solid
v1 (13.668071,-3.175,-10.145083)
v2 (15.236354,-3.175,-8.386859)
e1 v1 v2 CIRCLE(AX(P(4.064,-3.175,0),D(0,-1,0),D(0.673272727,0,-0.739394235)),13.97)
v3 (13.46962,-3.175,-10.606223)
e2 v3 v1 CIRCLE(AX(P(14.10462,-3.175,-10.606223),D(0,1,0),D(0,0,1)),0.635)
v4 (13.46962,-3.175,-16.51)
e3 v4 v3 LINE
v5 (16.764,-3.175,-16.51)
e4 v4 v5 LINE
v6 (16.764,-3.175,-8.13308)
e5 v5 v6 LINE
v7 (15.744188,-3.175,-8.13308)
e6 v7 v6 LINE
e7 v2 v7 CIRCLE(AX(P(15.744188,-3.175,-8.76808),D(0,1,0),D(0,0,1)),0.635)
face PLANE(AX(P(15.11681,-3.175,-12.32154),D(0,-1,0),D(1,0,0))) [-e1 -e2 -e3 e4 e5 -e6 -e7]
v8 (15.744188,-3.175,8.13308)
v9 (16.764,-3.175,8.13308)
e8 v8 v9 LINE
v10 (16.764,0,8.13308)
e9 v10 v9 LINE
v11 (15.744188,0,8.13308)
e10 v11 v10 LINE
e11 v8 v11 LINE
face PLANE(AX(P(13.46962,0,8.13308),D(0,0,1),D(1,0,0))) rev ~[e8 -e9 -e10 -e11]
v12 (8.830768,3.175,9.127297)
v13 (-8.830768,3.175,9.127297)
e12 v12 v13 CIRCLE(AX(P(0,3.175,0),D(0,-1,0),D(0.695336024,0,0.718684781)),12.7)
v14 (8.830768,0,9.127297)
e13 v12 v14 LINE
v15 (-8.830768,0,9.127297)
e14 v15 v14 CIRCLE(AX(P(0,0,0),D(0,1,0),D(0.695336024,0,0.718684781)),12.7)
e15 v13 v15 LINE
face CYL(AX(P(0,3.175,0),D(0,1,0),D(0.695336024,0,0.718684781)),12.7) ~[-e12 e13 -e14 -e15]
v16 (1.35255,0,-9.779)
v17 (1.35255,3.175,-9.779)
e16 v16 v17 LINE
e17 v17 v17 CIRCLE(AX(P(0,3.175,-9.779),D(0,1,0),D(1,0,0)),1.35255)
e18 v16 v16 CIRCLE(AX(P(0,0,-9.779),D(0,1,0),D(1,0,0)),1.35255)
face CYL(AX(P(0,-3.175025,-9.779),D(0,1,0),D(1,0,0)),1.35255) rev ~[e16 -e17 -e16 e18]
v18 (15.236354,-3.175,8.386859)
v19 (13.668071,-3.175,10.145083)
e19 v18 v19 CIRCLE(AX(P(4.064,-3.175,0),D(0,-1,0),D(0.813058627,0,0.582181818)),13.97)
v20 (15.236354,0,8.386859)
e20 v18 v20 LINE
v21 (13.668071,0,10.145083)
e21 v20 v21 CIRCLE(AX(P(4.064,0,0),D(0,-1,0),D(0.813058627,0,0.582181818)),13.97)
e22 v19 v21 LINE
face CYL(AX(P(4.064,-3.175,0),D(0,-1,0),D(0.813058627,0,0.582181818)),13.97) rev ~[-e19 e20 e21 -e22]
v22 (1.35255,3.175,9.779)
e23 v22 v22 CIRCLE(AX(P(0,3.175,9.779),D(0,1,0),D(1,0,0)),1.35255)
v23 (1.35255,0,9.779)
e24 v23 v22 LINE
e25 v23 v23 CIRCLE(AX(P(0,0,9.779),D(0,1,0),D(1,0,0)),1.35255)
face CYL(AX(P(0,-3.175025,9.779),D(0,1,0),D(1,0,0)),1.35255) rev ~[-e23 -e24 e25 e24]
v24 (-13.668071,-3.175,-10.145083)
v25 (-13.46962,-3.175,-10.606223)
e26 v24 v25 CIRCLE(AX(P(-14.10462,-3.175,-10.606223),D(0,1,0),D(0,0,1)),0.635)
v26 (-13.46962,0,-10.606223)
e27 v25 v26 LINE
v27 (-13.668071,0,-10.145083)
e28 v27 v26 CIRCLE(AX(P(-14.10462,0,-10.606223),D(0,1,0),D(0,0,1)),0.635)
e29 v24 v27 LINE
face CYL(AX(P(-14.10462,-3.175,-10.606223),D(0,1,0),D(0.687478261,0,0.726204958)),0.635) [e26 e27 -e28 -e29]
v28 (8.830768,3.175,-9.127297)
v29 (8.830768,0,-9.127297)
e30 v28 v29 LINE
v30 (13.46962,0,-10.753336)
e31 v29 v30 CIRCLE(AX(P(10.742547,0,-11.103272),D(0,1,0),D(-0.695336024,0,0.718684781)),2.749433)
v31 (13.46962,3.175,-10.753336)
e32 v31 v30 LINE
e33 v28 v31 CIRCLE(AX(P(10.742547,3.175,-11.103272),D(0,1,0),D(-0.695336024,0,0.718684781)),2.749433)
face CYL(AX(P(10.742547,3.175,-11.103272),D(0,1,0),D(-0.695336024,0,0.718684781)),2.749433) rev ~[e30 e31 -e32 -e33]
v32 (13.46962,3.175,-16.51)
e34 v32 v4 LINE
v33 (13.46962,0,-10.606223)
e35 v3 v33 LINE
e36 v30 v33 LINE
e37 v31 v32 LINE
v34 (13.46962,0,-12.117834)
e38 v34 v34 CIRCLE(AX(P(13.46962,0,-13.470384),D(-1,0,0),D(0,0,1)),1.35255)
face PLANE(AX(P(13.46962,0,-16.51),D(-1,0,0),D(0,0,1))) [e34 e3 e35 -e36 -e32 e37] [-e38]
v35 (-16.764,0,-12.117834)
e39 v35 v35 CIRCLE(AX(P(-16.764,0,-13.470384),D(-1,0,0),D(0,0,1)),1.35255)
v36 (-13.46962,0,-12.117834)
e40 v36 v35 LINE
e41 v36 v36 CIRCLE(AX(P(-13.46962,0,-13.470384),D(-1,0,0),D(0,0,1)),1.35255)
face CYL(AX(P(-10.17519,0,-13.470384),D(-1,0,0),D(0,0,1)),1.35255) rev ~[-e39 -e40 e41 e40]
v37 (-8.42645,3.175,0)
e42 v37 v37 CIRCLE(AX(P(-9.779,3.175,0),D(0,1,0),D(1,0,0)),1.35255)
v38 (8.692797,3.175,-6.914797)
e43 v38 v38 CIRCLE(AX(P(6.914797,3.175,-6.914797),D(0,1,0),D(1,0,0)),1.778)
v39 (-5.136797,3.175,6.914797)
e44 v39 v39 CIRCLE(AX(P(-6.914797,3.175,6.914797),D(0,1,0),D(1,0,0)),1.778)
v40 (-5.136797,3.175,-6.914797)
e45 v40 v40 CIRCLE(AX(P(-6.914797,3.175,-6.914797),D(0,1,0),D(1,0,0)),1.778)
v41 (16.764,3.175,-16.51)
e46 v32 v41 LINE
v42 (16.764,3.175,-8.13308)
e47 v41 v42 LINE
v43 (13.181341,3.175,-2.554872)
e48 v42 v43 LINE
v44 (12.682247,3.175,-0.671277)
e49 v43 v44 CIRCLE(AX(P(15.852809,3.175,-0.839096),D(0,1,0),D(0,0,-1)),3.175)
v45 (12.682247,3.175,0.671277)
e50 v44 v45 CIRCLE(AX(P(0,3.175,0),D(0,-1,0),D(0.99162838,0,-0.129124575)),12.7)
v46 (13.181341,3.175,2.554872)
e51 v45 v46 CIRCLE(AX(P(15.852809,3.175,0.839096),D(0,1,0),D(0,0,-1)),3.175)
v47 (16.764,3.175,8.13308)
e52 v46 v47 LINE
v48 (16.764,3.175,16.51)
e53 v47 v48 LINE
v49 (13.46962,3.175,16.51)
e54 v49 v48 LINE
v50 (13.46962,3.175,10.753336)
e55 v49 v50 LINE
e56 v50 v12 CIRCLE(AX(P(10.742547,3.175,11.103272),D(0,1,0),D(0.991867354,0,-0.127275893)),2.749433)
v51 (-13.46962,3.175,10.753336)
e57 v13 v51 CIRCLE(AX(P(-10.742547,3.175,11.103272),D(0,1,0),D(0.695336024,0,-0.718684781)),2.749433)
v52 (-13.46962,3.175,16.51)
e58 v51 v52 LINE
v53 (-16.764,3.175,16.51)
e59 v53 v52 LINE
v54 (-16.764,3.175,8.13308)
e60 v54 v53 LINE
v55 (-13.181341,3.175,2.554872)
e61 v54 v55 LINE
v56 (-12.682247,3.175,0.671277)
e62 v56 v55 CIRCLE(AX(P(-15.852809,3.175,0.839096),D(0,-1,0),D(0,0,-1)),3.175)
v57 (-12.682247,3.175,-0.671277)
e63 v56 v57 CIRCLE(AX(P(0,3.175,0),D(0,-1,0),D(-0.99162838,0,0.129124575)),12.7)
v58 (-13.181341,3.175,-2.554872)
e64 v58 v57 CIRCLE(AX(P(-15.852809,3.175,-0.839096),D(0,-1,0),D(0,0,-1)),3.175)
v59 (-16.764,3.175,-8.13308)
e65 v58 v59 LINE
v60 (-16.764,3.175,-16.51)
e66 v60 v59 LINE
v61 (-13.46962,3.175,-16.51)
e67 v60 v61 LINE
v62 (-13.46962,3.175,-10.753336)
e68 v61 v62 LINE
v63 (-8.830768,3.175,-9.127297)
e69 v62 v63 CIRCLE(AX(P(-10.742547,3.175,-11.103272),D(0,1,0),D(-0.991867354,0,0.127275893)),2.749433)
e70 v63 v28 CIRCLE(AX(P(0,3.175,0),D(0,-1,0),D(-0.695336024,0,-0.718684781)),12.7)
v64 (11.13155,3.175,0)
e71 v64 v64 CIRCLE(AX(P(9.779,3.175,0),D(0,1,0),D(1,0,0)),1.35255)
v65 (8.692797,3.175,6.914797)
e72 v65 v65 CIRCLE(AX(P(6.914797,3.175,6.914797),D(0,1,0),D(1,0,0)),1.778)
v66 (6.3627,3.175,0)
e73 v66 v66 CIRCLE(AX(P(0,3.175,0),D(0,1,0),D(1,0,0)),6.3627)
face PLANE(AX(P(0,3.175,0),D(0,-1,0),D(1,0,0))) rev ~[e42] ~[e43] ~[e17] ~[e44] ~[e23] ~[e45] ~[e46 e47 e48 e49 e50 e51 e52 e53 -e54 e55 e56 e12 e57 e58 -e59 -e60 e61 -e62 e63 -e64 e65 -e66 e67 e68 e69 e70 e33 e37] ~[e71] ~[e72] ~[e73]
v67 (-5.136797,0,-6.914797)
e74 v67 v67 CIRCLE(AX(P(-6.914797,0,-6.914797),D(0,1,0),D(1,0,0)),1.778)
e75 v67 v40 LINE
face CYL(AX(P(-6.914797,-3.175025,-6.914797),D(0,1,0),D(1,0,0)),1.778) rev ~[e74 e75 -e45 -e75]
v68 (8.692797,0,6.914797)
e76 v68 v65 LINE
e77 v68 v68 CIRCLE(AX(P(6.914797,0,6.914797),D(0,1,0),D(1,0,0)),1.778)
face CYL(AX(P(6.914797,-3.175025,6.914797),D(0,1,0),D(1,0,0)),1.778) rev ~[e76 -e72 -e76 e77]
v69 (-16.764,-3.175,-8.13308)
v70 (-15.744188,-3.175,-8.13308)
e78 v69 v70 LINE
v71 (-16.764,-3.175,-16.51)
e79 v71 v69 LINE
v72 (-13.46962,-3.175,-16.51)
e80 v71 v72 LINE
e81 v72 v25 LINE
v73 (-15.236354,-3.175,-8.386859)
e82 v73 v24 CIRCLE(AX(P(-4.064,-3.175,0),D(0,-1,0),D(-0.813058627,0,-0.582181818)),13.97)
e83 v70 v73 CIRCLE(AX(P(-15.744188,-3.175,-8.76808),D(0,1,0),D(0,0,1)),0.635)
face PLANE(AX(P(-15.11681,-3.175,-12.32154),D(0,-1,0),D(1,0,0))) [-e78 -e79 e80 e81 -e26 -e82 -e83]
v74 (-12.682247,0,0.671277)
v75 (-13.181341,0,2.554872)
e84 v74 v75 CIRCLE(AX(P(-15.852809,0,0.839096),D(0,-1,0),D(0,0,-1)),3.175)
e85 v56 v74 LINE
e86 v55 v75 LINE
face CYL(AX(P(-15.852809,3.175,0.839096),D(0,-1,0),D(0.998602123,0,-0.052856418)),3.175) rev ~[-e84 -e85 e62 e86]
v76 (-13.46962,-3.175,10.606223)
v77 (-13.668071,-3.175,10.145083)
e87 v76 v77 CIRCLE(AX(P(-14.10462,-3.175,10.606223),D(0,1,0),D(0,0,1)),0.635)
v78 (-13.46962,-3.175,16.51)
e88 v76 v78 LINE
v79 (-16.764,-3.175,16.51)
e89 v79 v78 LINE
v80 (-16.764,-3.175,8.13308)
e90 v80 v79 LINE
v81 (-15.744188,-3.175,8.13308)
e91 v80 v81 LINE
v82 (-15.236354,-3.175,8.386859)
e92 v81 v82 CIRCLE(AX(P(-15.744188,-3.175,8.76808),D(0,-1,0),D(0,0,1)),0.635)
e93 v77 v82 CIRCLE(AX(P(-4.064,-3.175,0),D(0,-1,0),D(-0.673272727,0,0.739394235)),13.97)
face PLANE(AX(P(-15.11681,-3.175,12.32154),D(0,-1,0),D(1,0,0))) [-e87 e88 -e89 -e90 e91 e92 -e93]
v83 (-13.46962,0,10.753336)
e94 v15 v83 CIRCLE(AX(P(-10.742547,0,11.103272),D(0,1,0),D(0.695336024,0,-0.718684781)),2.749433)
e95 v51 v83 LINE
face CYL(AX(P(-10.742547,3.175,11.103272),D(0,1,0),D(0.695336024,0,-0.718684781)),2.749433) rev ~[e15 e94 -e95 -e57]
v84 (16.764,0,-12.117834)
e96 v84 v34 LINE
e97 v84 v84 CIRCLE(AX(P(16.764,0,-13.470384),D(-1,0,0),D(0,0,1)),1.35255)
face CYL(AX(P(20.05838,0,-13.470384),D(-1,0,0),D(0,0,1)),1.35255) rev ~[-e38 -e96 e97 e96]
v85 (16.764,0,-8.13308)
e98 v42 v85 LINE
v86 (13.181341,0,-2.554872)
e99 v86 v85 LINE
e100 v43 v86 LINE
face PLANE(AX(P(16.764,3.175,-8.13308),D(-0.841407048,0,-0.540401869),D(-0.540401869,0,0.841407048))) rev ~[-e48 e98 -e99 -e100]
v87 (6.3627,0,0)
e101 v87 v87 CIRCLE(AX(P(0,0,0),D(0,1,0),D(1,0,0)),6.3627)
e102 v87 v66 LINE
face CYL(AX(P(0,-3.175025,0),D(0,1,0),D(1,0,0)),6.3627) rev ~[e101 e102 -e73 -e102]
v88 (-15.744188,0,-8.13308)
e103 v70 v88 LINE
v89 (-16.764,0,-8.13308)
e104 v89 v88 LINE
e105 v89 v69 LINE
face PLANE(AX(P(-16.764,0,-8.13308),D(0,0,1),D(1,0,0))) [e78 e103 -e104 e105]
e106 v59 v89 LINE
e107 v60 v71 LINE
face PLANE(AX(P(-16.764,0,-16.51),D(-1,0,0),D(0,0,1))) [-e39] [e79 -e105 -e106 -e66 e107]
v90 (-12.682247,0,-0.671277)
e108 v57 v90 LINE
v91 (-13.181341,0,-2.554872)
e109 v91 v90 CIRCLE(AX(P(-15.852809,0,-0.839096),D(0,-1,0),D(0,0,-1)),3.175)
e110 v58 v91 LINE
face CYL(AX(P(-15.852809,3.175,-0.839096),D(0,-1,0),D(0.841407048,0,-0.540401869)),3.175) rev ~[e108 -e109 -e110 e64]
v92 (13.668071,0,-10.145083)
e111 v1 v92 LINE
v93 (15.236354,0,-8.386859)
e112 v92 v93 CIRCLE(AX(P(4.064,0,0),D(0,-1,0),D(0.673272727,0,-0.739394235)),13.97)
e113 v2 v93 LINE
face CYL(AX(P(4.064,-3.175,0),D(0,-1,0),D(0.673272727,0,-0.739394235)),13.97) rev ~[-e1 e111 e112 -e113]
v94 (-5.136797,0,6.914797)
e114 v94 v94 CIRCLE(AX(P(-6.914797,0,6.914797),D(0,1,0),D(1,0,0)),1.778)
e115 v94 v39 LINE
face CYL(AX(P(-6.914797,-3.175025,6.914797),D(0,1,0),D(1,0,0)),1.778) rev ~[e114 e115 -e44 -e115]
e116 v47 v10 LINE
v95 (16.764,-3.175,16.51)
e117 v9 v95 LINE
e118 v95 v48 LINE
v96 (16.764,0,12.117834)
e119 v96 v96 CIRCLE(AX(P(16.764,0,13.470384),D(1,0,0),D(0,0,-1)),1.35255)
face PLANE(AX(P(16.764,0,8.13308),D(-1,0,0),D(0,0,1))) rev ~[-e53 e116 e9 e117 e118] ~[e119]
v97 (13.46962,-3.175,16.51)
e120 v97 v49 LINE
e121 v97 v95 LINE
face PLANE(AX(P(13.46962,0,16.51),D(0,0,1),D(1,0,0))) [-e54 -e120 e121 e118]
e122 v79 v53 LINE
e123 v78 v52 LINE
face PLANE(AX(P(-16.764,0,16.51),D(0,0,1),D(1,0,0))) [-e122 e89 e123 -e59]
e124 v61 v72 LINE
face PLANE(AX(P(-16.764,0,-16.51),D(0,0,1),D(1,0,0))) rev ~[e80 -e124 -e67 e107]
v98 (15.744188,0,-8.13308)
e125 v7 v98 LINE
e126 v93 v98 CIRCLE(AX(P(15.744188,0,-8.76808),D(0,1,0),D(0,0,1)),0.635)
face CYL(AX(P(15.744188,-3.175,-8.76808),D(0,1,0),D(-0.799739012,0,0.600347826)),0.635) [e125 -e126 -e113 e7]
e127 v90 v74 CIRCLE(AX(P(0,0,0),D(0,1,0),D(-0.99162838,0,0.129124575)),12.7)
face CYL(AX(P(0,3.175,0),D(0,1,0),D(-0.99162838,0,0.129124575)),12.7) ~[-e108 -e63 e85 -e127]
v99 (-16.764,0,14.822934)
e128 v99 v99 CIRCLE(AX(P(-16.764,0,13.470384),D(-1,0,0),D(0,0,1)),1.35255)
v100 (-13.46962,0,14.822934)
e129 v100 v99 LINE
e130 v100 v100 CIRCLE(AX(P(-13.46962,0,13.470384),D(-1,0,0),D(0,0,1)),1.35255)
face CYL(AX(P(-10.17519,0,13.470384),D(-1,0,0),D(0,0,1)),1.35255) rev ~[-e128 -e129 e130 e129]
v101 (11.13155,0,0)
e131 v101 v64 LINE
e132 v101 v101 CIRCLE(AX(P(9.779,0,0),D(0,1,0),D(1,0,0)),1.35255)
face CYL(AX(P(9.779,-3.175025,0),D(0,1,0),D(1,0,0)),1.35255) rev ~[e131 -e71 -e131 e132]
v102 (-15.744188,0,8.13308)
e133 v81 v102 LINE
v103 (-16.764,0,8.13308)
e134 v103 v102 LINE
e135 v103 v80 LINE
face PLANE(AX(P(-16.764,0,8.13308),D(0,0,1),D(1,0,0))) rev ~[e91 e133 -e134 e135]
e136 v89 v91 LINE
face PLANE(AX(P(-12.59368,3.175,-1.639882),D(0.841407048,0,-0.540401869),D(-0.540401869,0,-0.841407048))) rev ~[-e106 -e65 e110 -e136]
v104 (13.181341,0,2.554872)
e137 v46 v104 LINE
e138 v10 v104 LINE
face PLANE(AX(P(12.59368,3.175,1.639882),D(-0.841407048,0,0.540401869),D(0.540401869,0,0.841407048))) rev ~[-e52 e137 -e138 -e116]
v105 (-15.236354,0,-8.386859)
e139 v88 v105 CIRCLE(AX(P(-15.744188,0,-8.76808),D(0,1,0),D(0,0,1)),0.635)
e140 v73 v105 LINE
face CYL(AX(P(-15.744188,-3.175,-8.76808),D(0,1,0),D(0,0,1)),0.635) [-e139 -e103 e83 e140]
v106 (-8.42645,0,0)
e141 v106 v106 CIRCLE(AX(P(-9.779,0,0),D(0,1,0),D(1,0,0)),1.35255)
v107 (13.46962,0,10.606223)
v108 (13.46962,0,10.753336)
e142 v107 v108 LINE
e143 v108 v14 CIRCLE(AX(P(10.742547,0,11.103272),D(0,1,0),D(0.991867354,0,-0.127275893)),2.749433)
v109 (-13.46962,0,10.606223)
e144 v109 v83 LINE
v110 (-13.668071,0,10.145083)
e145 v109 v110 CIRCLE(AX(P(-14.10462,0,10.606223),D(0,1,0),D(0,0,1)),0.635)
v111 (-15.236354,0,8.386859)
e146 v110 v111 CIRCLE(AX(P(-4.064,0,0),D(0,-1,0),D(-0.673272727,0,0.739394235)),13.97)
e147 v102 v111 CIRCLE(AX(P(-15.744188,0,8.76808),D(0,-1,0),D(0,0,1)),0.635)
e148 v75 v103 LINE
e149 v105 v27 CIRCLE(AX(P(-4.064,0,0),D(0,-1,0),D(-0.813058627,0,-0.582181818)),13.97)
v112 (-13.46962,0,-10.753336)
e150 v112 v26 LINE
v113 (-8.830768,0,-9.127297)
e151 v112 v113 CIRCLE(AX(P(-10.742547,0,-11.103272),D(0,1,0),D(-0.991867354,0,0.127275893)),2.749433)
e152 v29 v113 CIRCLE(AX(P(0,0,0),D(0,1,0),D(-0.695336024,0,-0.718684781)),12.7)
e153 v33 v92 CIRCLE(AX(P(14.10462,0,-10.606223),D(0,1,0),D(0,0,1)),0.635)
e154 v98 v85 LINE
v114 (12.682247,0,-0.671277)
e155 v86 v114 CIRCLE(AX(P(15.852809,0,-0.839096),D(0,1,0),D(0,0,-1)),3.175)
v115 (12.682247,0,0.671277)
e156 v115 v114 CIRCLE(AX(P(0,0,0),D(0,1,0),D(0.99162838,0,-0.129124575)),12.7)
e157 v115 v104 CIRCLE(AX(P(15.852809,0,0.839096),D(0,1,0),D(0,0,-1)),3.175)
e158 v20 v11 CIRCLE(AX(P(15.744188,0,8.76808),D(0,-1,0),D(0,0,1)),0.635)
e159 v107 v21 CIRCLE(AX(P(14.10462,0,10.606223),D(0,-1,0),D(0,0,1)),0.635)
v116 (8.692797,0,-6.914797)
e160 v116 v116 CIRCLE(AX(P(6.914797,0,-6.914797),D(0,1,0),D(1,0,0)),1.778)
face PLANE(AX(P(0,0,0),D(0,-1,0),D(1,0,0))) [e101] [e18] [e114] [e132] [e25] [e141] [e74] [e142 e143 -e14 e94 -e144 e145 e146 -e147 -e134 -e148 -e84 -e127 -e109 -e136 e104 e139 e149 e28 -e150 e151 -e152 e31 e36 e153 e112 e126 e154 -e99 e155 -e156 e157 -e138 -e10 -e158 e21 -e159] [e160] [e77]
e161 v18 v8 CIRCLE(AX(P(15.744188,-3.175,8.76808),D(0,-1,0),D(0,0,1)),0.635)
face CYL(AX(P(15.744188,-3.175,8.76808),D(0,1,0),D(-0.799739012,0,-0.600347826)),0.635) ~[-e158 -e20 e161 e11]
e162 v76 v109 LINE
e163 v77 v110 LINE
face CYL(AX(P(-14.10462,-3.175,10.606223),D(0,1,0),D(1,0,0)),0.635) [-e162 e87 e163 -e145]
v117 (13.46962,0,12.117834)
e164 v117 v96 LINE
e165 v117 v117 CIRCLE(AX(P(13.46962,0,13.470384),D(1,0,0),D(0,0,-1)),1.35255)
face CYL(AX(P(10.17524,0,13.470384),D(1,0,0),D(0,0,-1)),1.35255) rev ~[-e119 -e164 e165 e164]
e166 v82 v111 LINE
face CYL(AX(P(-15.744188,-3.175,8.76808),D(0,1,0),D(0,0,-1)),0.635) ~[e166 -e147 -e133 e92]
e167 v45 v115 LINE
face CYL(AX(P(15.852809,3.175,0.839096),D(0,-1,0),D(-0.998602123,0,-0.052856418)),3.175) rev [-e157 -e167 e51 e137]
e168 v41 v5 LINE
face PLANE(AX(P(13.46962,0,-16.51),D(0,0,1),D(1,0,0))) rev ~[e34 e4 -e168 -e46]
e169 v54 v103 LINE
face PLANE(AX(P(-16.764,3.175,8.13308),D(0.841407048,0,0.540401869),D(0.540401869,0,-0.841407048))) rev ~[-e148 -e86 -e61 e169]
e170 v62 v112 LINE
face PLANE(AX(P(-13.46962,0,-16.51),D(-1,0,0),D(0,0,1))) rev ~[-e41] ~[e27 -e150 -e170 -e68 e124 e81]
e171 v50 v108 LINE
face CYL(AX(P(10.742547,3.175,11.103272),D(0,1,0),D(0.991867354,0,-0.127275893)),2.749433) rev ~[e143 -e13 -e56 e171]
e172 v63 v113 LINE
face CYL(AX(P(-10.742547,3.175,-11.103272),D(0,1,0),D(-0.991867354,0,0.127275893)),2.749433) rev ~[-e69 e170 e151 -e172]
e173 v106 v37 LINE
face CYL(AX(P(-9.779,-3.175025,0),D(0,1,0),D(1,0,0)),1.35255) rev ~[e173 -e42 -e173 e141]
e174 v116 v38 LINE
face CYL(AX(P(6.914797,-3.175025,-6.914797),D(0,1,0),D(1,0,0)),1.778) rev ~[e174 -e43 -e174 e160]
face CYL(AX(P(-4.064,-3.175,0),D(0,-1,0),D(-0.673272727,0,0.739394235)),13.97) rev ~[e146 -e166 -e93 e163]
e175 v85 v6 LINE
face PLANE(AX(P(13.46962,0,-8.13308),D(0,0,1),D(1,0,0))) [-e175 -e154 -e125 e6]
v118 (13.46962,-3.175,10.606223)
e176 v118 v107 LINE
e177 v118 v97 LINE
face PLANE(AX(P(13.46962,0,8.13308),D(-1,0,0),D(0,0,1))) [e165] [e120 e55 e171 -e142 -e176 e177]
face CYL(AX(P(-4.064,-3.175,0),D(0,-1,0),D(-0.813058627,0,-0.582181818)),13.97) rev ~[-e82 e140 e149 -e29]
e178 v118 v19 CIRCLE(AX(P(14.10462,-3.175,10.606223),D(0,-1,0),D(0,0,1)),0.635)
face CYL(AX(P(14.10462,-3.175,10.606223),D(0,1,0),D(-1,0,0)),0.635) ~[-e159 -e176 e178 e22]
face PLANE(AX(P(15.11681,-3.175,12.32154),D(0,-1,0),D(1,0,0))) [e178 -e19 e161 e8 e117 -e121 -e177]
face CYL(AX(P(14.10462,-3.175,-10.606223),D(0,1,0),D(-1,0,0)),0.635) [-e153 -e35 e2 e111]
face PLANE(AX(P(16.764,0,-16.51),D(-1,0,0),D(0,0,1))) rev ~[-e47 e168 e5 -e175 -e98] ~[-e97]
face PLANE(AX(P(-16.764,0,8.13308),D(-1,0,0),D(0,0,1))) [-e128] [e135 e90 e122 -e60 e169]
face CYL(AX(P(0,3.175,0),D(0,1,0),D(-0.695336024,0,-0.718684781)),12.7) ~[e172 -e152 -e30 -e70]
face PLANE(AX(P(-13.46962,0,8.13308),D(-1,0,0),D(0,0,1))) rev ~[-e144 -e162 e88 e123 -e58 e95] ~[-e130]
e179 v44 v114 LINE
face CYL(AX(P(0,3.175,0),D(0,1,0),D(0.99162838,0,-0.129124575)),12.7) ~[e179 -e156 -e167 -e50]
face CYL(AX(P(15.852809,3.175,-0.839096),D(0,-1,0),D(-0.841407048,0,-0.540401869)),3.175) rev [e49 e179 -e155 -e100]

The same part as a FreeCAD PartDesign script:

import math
import FreeCAD as App
import Part
import Sketcher

V = App.Vector
Q = App.Units.Quantity


def edges_at(feature, points):
    """Names of the edges that pass closest to the given points."""
    edges = feature.Shape.Edges
    near = lambda p: min(range(len(edges)), key=lambda i: edges[i].distToShape(Part.Vertex(*p))[0])
    return sorted({f"Edge{near(p) + 1}" for p in points})

doc = App.newDocument("Part")
body = doc.addObject("PartDesign::Body", "Body")

sketch1 = body.newObject("Sketcher::SketchObject", "Sketch")
sketch1.AttachmentSupport = (doc.getObject("XZ_Plane"), [""])
sketch1.MapMode = "FlatFace"
sketch1.addGeometry([
    Part.LineSegment(V(-17, 17, 0), V(-17, -17, 0)),
    Part.LineSegment(V(-17, -17, 0), V(17, -17, 0)),
    Part.LineSegment(V(17, -17, 0), V(17, 17, 0)),
    Part.LineSegment(V(17, 17, 0), V(-17, 17, 0)),
], False)
sketch1.addConstraint([
    Sketcher.Constraint("Coincident", 0, 2, 1, 1),
    Sketcher.Constraint("Coincident", 1, 2, 2, 1),
    Sketcher.Constraint("Coincident", 2, 2, 3, 1),
    Sketcher.Constraint("Coincident", 3, 2, 0, 1),
    Sketcher.Constraint("Vertical", 0),
    Sketcher.Constraint("Horizontal", 1),
    Sketcher.Constraint("Vertical", 2),
    Sketcher.Constraint("Horizontal", 3),
    Sketcher.Constraint("Symmetric", 0, 2, 2, 2, -1, 1),
    Sketcher.Constraint("DistanceY", 0, 2, 0, 1, Q("1.3 in")),
    Sketcher.Constraint("DistanceX", 1, 1, 1, 2, Q("1.32 in")),
])
pad1 = body.newObject("PartDesign::Pad", "Pad")
pad1.Profile = sketch1
pad1.Length = Q("0.125 in")
pad1.Reversed = True

sketch2 = body.newObject("Sketcher::SketchObject", "Sketch001")
sketch2.AttachmentSupport = (doc.getObject("XZ_Plane"), [""])
sketch2.MapMode = "FlatFace"
sketch2.AttachmentOffset = App.Placement(V(0, 0, -0.125 * 25.4), App.Rotation())
sketch2.addGeometry([
    Part.LineSegment(V(13.5, 16.5, 0), V(13.5, 10.8, 0)),
    Part.ArcOfCircle(Part.Circle(V(10.7, 11.1, 0), V(0, 0, 1), 2.7), math.radians(-134), math.radians(-7)),
    Part.ArcOfCircle(Part.Circle(V(0, 0, 0), V(0, 0, 1), 12.7), math.radians(46), math.radians(134)),
    Part.ArcOfCircle(Part.Circle(V(-10.7, 11.1, 0), V(0, 0, 1), 2.7), math.radians(-173), math.radians(-46)),
    Part.LineSegment(V(-13.5, 10.8, 0), V(-13.5, 16.5, 0)),
    Part.LineSegment(V(-13.5, 16.5, 0), V(13.5, 16.5, 0)),
], False)
sketch2.addConstraint([
    Sketcher.Constraint("Coincident", 0, 2, 1, 2),
    Sketcher.Constraint("Tangent", 1, 1, 2, 1),
    Sketcher.Constraint("Tangent", 2, 2, 3, 2),
    Sketcher.Constraint("Coincident", 3, 1, 4, 1),
    Sketcher.Constraint("Coincident", 4, 2, 5, 1),
    Sketcher.Constraint("Coincident", 5, 2, 0, 1),
    Sketcher.Constraint("Vertical", 0),
    Sketcher.Constraint("Vertical", 4),
    Sketcher.Constraint("Horizontal", 5),
    Sketcher.Constraint("Coincident", 2, 3, -1, 1),
    Sketcher.Constraint("Equal", 1, 3),
    Sketcher.Constraint("Symmetric", 0, 2, 3, 1, -2),
    Sketcher.Constraint("Radius", 2, Q("0.5 in")),
    Sketcher.Constraint("DistanceY", -1, 1, 4, 2, Q("0.65 in")),
    Sketcher.Constraint("DistanceX", 5, 1, 5, 2, Q("1.0606 in")),
    Sketcher.Constraint("Radius", 1, 2.749433),
    Sketcher.Constraint("DistanceY", 0, 2, 0, 1, 5.756664),
])
pocket1 = body.newObject("PartDesign::Pocket", "Pocket")
pocket1.Profile = sketch2
pocket1.Type = "ThroughAll"
pocket1.Reversed = True

sketch3 = body.newObject("Sketcher::SketchObject", "Sketch002")
sketch3.AttachmentSupport = (doc.getObject("XZ_Plane"), [""])
sketch3.MapMode = "FlatFace"
sketch3.addGeometry([
    Part.LineSegment(V(-16.8, 16.5, 0), V(-16.8, 8.1, 0)),
    Part.LineSegment(V(-16.8, 8.1, 0), V(-13.5, 8.1, 0)),
    Part.LineSegment(V(-13.5, 8.1, 0), V(-13.5, 16.5, 0)),
    Part.LineSegment(V(-13.5, 16.5, 0), V(-16.8, 16.5, 0)),
], False)
sketch3.addConstraint([
    Sketcher.Constraint("Coincident", 0, 2, 1, 1),
    Sketcher.Constraint("Coincident", 1, 2, 2, 1),
    Sketcher.Constraint("Coincident", 2, 2, 3, 1),
    Sketcher.Constraint("Coincident", 3, 2, 0, 1),
    Sketcher.Constraint("Vertical", 0),
    Sketcher.Constraint("Horizontal", 1),
    Sketcher.Constraint("Vertical", 2),
    Sketcher.Constraint("Horizontal", 3),
    Sketcher.Constraint("DistanceX", 0, 2, -1, 1, Q("0.66 in")),
    Sketcher.Constraint("DistanceY", -1, 1, 2, 2, Q("0.65 in")),
    Sketcher.Constraint("DistanceX", 1, 1, 1, 2, Q("0.1297 in")),
    Sketcher.Constraint("DistanceY", 0, 2, 0, 1, Q("0.3298 in")),
])
pad2 = body.newObject("PartDesign::Pad", "Pad001")
pad2.Profile = sketch3
pad2.Length = Q("0.125 in")

sketch4 = body.newObject("Sketcher::SketchObject", "Sketch003")
sketch4.AttachmentSupport = (doc.getObject("XZ_Plane"), [""])
sketch4.MapMode = "FlatFace"
sketch4.AttachmentOffset = App.Placement(V(0, 0, -0.125 * 25.4), App.Rotation())
sketch4.addGeometry([
    Part.LineSegment(V(16.8, 8.1, 0), V(16.8, -8.1, 0)),
    Part.LineSegment(V(16.8, -8.1, 0), V(12.6, -1.6, 0)),
    Part.ArcOfCircle(Part.Circle(V(0, 0, 0), V(0, 0, 1), 12.7), math.radians(-7.42), math.radians(7.42)),
    Part.LineSegment(V(12.6, 1.6, 0), V(16.8, 8.1, 0)),
], False)
sketch4.addConstraint([
    Sketcher.Constraint("Coincident", 0, 2, 1, 1),
    Sketcher.Constraint("Coincident", 1, 2, 2, 1),
    Sketcher.Constraint("Coincident", 2, 2, 3, 1),
    Sketcher.Constraint("Coincident", 3, 2, 0, 1),
    Sketcher.Constraint("Vertical", 0),
    Sketcher.Constraint("Coincident", 2, 3, -1, 1),
    Sketcher.Constraint("Vertical", 1, 2, 2, 2),
    Sketcher.Constraint("Equal", 1, 3),
    Sketcher.Constraint("Radius", 2, Q("0.5 in")),
    Sketcher.Constraint("DistanceX", -1, 1, 0, 2, Q("0.66 in")),
    Sketcher.Constraint("DistanceY", 0, 2, 0, 1, Q("0.6404 in")),
    Sketcher.Constraint("Distance", 1, 7.717071),
])
pocket2 = body.newObject("PartDesign::Pocket", "Pocket001")
pocket2.Profile = sketch4
pocket2.Type = "ThroughAll"
pocket2.Reversed = True

sketch5 = body.newObject("Sketcher::SketchObject", "Sketch004")
sketch5.AttachmentSupport = (doc.getObject("XZ_Plane"), [""])
sketch5.MapMode = "FlatFace"
sketch5.addGeometry([
    Part.LineSegment(V(13.5, 16.5, 0), V(13.5, 8.1, 0)),
    Part.LineSegment(V(13.5, 8.1, 0), V(16.8, 8.1, 0)),
    Part.LineSegment(V(16.8, 8.1, 0), V(16.8, 16.5, 0)),
    Part.LineSegment(V(16.8, 16.5, 0), V(13.5, 16.5, 0)),
], False)
sketch5.addConstraint([
    Sketcher.Constraint("Coincident", 0, 2, 1, 1),
    Sketcher.Constraint("Coincident", 1, 2, 2, 1),
    Sketcher.Constraint("Coincident", 2, 2, 3, 1),
    Sketcher.Constraint("Coincident", 3, 2, 0, 1),
    Sketcher.Constraint("Vertical", 0),
    Sketcher.Constraint("Horizontal", 1),
    Sketcher.Constraint("Vertical", 2),
    Sketcher.Constraint("Horizontal", 3),
    Sketcher.Constraint("DistanceX", -1, 1, 1, 2, Q("0.66 in")),
    Sketcher.Constraint("DistanceY", -1, 1, 2, 2, Q("0.65 in")),
    Sketcher.Constraint("DistanceX", 1, 1, 1, 2, Q("0.1297 in")),
    Sketcher.Constraint("DistanceY", 0, 2, 0, 1, Q("0.3298 in")),
])
pad3 = body.newObject("PartDesign::Pad", "Pad002")
pad3.Profile = sketch5
pad3.Length = Q("0.125 in")

sketch6 = body.newObject("Sketcher::SketchObject", "Sketch005")
sketch6.AttachmentSupport = (doc.getObject("XZ_Plane"), [""])
sketch6.MapMode = "FlatFace"
sketch6.AttachmentOffset = App.Placement(V(0, 0, -0.125 * 25.4), App.Rotation())
sketch6.addGeometry([
    Part.LineSegment(V(-13.5, -16.5, 0), V(-13.5, -10.8, 0)),
    Part.ArcOfCircle(Part.Circle(V(-10.7, -11.1, 0), V(0, 0, 1), 2.7), math.radians(46), math.radians(173)),
    Part.ArcOfCircle(Part.Circle(V(0, 0, 0), V(0, 0, 1), 12.7), math.radians(-134), math.radians(-46)),
    Part.ArcOfCircle(Part.Circle(V(10.7, -11.1, 0), V(0, 0, 1), 2.7), math.radians(7), math.radians(134)),
    Part.LineSegment(V(13.5, -10.8, 0), V(13.5, -16.5, 0)),
    Part.LineSegment(V(13.5, -16.5, 0), V(-13.5, -16.5, 0)),
], False)
sketch6.addConstraint([
    Sketcher.Constraint("Coincident", 0, 2, 1, 2),
    Sketcher.Constraint("Tangent", 1, 1, 2, 1),
    Sketcher.Constraint("Tangent", 2, 2, 3, 2),
    Sketcher.Constraint("Coincident", 3, 1, 4, 1),
    Sketcher.Constraint("Coincident", 4, 2, 5, 1),
    Sketcher.Constraint("Coincident", 5, 2, 0, 1),
    Sketcher.Constraint("Vertical", 0),
    Sketcher.Constraint("Vertical", 4),
    Sketcher.Constraint("Horizontal", 5),
    Sketcher.Constraint("Coincident", 2, 3, -1, 1),
    Sketcher.Constraint("Equal", 1, 3),
    Sketcher.Constraint("Symmetric", 0, 2, 3, 1, -2),
    Sketcher.Constraint("Radius", 2, Q("0.5 in")),
    Sketcher.Constraint("DistanceY", 4, 2, -1, 1, Q("0.65 in")),
    Sketcher.Constraint("DistanceX", 5, 2, 5, 1, Q("1.0606 in")),
    Sketcher.Constraint("Radius", 1, 2.749433),
    Sketcher.Constraint("DistanceY", 0, 1, 0, 2, 5.756664),
])
pocket3 = body.newObject("PartDesign::Pocket", "Pocket002")
pocket3.Profile = sketch6
pocket3.Type = "ThroughAll"
pocket3.Reversed = True

sketch7 = body.newObject("Sketcher::SketchObject", "Sketch006")
sketch7.AttachmentSupport = (doc.getObject("XZ_Plane"), [""])
sketch7.MapMode = "FlatFace"
sketch7.addGeometry([
    Part.LineSegment(V(13.5, -8.1, 0), V(13.5, -16.5, 0)),
    Part.LineSegment(V(13.5, -16.5, 0), V(16.8, -16.5, 0)),
    Part.LineSegment(V(16.8, -16.5, 0), V(16.8, -8.1, 0)),
    Part.LineSegment(V(16.8, -8.1, 0), V(13.5, -8.1, 0)),
], False)
sketch7.addConstraint([
    Sketcher.Constraint("Coincident", 0, 2, 1, 1),
    Sketcher.Constraint("Coincident", 1, 2, 2, 1),
    Sketcher.Constraint("Coincident", 2, 2, 3, 1),
    Sketcher.Constraint("Coincident", 3, 2, 0, 1),
    Sketcher.Constraint("Vertical", 0),
    Sketcher.Constraint("Horizontal", 1),
    Sketcher.Constraint("Vertical", 2),
    Sketcher.Constraint("Horizontal", 3),
    Sketcher.Constraint("DistanceY", 0, 2, -1, 1, Q("0.65 in")),
    Sketcher.Constraint("DistanceX", -1, 1, 1, 2, Q("0.66 in")),
    Sketcher.Constraint("DistanceX", 1, 1, 1, 2, Q("0.1297 in")),
    Sketcher.Constraint("DistanceY", 0, 2, 0, 1, Q("0.3298 in")),
])
pad4 = body.newObject("PartDesign::Pad", "Pad003")
pad4.Profile = sketch7
pad4.Length = Q("0.125 in")

sketch8 = body.newObject("Sketcher::SketchObject", "Sketch007")
sketch8.AttachmentSupport = (doc.getObject("XZ_Plane"), [""])
sketch8.MapMode = "FlatFace"
sketch8.AttachmentOffset = App.Placement(V(0, 0, -0.125 * 25.4), App.Rotation())
sketch8.addGeometry([
    Part.LineSegment(V(-16.8, -8.1, 0), V(-16.8, 8.1, 0)),
    Part.LineSegment(V(-16.8, 8.1, 0), V(-12.6, 1.6, 0)),
    Part.ArcOfCircle(Part.Circle(V(0, 0, 0), V(0, 0, 1), 12.7), math.radians(172.58), math.radians(187.42)),
    Part.LineSegment(V(-12.6, -1.6, 0), V(-16.8, -8.1, 0)),
], False)
sketch8.addConstraint([
    Sketcher.Constraint("Coincident", 0, 2, 1, 1),
    Sketcher.Constraint("Coincident", 1, 2, 2, 1),
    Sketcher.Constraint("Coincident", 2, 2, 3, 1),
    Sketcher.Constraint("Coincident", 3, 2, 0, 1),
    Sketcher.Constraint("Vertical", 0),
    Sketcher.Constraint("Coincident", 2, 3, -1, 1),
    Sketcher.Constraint("Vertical", 1, 2, 2, 2),
    Sketcher.Constraint("Equal", 1, 3),
    Sketcher.Constraint("Radius", 2, Q("0.5 in")),
    Sketcher.Constraint("DistanceX", 0, 2, -1, 1, Q("0.66 in")),
    Sketcher.Constraint("DistanceY", 0, 1, 0, 2, Q("0.6404 in")),
    Sketcher.Constraint("Distance", 1, 7.717071),
])
pocket4 = body.newObject("PartDesign::Pocket", "Pocket003")
pocket4.Profile = sketch8
pocket4.Type = "ThroughAll"
pocket4.Reversed = True

sketch9 = body.newObject("Sketcher::SketchObject", "Sketch008")
sketch9.AttachmentSupport = (doc.getObject("XZ_Plane"), [""])
sketch9.MapMode = "FlatFace"
sketch9.addGeometry([
    Part.LineSegment(V(-16.8, -8.1, 0), V(-16.8, -16.5, 0)),
    Part.LineSegment(V(-16.8, -16.5, 0), V(-13.5, -16.5, 0)),
    Part.LineSegment(V(-13.5, -16.5, 0), V(-13.5, -8.1, 0)),
    Part.LineSegment(V(-13.5, -8.1, 0), V(-16.8, -8.1, 0)),
], False)
sketch9.addConstraint([
    Sketcher.Constraint("Coincident", 0, 2, 1, 1),
    Sketcher.Constraint("Coincident", 1, 2, 2, 1),
    Sketcher.Constraint("Coincident", 2, 2, 3, 1),
    Sketcher.Constraint("Coincident", 3, 2, 0, 1),
    Sketcher.Constraint("Vertical", 0),
    Sketcher.Constraint("Horizontal", 1),
    Sketcher.Constraint("Vertical", 2),
    Sketcher.Constraint("Horizontal", 3),
    Sketcher.Constraint("DistanceX", 0, 2, -1, 1, Q("0.66 in")),
    Sketcher.Constraint("DistanceY", 0, 2, -1, 1, Q("0.65 in")),
    Sketcher.Constraint("DistanceX", 1, 1, 1, 2, Q("0.1297 in")),
    Sketcher.Constraint("DistanceY", 0, 2, 0, 1, Q("0.3298 in")),
])
pad5 = body.newObject("PartDesign::Pad", "Pad004")
pad5.Profile = sketch9
pad5.Length = Q("0.125 in")

sketch10 = body.newObject("Sketcher::SketchObject", "Sketch009")
sketch10.AttachmentSupport = (doc.getObject("XZ_Plane"), [""])
sketch10.MapMode = "FlatFace"
sketch10.AttachmentOffset = App.Placement(V(0, 0, 0.125 * 25.4), App.Rotation())
sketch10.addGeometry([
    Part.LineSegment(V(15.4, -8.1, 0), V(13.5, -8.1, 0)),
    Part.LineSegment(V(13.5, -8.1, 0), V(13.5, -10.3, 0)),
    Part.ArcOfCircle(Part.Circle(V(4.1, 0, 0), V(0, 0, 1), 14), math.radians(-47.68), math.radians(-35.6)),
], False)
sketch10.addConstraint([
    Sketcher.Constraint("Coincident", 0, 2, 1, 1),
    Sketcher.Constraint("Coincident", 1, 2, 2, 1),
    Sketcher.Constraint("Coincident", 2, 2, 0, 1),
    Sketcher.Constraint("Horizontal", 0),
    Sketcher.Constraint("Vertical", 1),
    Sketcher.Constraint("PointOnObject", 2, 3, -1),
    Sketcher.Constraint("Radius", 2, Q("0.55 in")),
    Sketcher.Constraint("DistanceX", -1, 1, 2, 3, Q("0.16 in")),
    Sketcher.Constraint("DistanceX", -1, 1, 0, 2, Q("0.5303 in")),
    Sketcher.Constraint("DistanceY", 0, 2, -1, 1, Q("0.3202 in")),
])
pocket5 = body.newObject("PartDesign::Pocket", "Pocket004")
pocket5.Profile = sketch10
pocket5.Length = Q("0.125 in")

sketch11 = body.newObject("Sketcher::SketchObject", "Sketch010")
sketch11.AttachmentSupport = (doc.getObject("XZ_Plane"), [""])
sketch11.MapMode = "FlatFace"
sketch11.AttachmentOffset = App.Placement(V(0, 0, 0.125 * 25.4), App.Rotation())
sketch11.addGeometry([
    Part.LineSegment(V(13.5, 10.3, 0), V(13.5, 8.1, 0)),
    Part.LineSegment(V(13.5, 8.1, 0), V(15.4, 8.1, 0)),
    Part.ArcOfCircle(Part.Circle(V(4.1, 0, 0), V(0, 0, 1), 14), math.radians(35.6), math.radians(47.68)),
], False)
sketch11.addConstraint([
    Sketcher.Constraint("Coincident", 0, 2, 1, 1),
    Sketcher.Constraint("Coincident", 1, 2, 2, 1),
    Sketcher.Constraint("Coincident", 2, 2, 0, 1),
    Sketcher.Constraint("Vertical", 0),
    Sketcher.Constraint("Horizontal", 1),
    Sketcher.Constraint("PointOnObject", 2, 3, -1),
    Sketcher.Constraint("Radius", 2, Q("0.55 in")),
    Sketcher.Constraint("DistanceX", -1, 1, 2, 3, Q("0.16 in")),
    Sketcher.Constraint("DistanceX", -1, 1, 0, 2, Q("0.5303 in")),
    Sketcher.Constraint("DistanceY", -1, 1, 0, 2, Q("0.3202 in")),
])
pocket6 = body.newObject("PartDesign::Pocket", "Pocket005")
pocket6.Profile = sketch11
pocket6.Length = Q("0.125 in")

sketch12 = body.newObject("Sketcher::SketchObject", "Sketch011")
sketch12.AttachmentSupport = (doc.getObject("XZ_Plane"), [""])
sketch12.MapMode = "FlatFace"
sketch12.AttachmentOffset = App.Placement(V(0, 0, 0.125 * 25.4), App.Rotation())
sketch12.addGeometry([
    Part.LineSegment(V(-15.4, 8.1, 0), V(-13.5, 8.1, 0)),
    Part.LineSegment(V(-13.5, 8.1, 0), V(-13.5, 10.3, 0)),
    Part.ArcOfCircle(Part.Circle(V(-4.1, 0, 0), V(0, 0, 1), 14), math.radians(132.32), math.radians(144.4)),
], False)
sketch12.addConstraint([
    Sketcher.Constraint("Coincident", 0, 2, 1, 1),
    Sketcher.Constraint("Coincident", 1, 2, 2, 1),
    Sketcher.Constraint("Coincident", 2, 2, 0, 1),
    Sketcher.Constraint("Horizontal", 0),
    Sketcher.Constraint("Vertical", 1),
    Sketcher.Constraint("PointOnObject", 2, 3, -1),
    Sketcher.Constraint("Radius", 2, Q("0.55 in")),
    Sketcher.Constraint("DistanceX", 2, 3, -1, 1, Q("0.16 in")),
    Sketcher.Constraint("DistanceX", 0, 2, -1, 1, Q("0.5303 in")),
    Sketcher.Constraint("DistanceY", -1, 1, 0, 2, Q("0.3202 in")),
])
pocket7 = body.newObject("PartDesign::Pocket", "Pocket006")
pocket7.Profile = sketch12
pocket7.Length = Q("0.125 in")

sketch13 = body.newObject("Sketcher::SketchObject", "Sketch012")
sketch13.AttachmentSupport = (doc.getObject("XZ_Plane"), [""])
sketch13.MapMode = "FlatFace"
sketch13.AttachmentOffset = App.Placement(V(0, 0, 0.125 * 25.4), App.Rotation())
sketch13.addGeometry([
    Part.LineSegment(V(-13.5, -10.3, 0), V(-13.5, -8.1, 0)),
    Part.LineSegment(V(-13.5, -8.1, 0), V(-15.4, -8.1, 0)),
    Part.ArcOfCircle(Part.Circle(V(-4.1, 0, 0), V(0, 0, 1), 14), math.radians(-144.4), math.radians(-132.32)),
], False)
sketch13.addConstraint([
    Sketcher.Constraint("Coincident", 0, 2, 1, 1),
    Sketcher.Constraint("Coincident", 1, 2, 2, 1),
    Sketcher.Constraint("Coincident", 2, 2, 0, 1),
    Sketcher.Constraint("Vertical", 0),
    Sketcher.Constraint("Horizontal", 1),
    Sketcher.Constraint("PointOnObject", 2, 3, -1),
    Sketcher.Constraint("Radius", 2, Q("0.55 in")),
    Sketcher.Constraint("DistanceX", 2, 3, -1, 1, Q("0.16 in")),
    Sketcher.Constraint("DistanceX", 0, 2, -1, 1, Q("0.5303 in")),
    Sketcher.Constraint("DistanceY", 0, 2, -1, 1, Q("0.3202 in")),
])
pocket8 = body.newObject("PartDesign::Pocket", "Pocket007")
pocket8.Profile = sketch13
pocket8.Length = Q("0.125 in")

sketch14 = body.newObject("Sketcher::SketchObject", "Sketch013")
sketch14.AttachmentSupport = (doc.getObject("XZ_Plane"), [""])
sketch14.MapMode = "FlatFace"
sketch14.addGeometry(Part.Circle(V(0, 0, 0), V(0, 0, 1), 6), False)
sketch14.addConstraint([
    Sketcher.Constraint("Coincident", 0, 3, -1, 1),
    Sketcher.Constraint("Diameter", 0, Q("0.501 in")),
])
doc.recompute()
hole = body.newObject("PartDesign::Hole", "Hole")
hole.Profile = sketch14
hole.ThreadType = "None"
hole.Diameter = Q("0.501 in")
hole.DepthType = "Dimension"
hole.Depth = 3.175025
hole.DrillPoint = "Flat"

sketch15 = body.newObject("Sketcher::SketchObject", "Sketch014")
sketch15.AttachmentSupport = (doc.getObject("XZ_Plane"), [""])
sketch15.MapMode = "FlatFace"
sketch15.addGeometry([
    Part.Circle(V(0, 9.8, 0), V(0, 0, 1), 1.4),
    Part.Circle(V(-9.8, 0, 0), V(0, 0, 1), 1.4),
    Part.Circle(V(0, -9.8, 0), V(0, 0, 1), 1.4),
    Part.Circle(V(9.8, 0, 0), V(0, 0, 1), 1.4),
], False)
sketch15.addConstraint([
    Sketcher.Constraint("Equal", 0, 1),
    Sketcher.Constraint("Equal", 1, 2),
    Sketcher.Constraint("Equal", 2, 3),
    Sketcher.Constraint("Symmetric", 0, 3, 2, 3, -1, 1),
    Sketcher.Constraint("Symmetric", 1, 3, 3, 3, -1, 1),
    Sketcher.Constraint("PointOnObject", 0, 3, -2),
    Sketcher.Constraint("PointOnObject", 1, 3, -1),
    Sketcher.Constraint("Diameter", 0, Q("0.1065 in")),
    Sketcher.Constraint("DistanceY", 2, 3, 0, 3, Q("0.77 in")),
    Sketcher.Constraint("DistanceX", 1, 3, 3, 3, Q("0.77 in")),
])
doc.recompute()
hole2 = body.newObject("PartDesign::Hole", "Hole001")
hole2.Profile = sketch15
hole2.ThreadType = "None"
hole2.Diameter = Q("0.1065 in")
hole2.DepthType = "Dimension"
hole2.Depth = 3.175025
hole2.DrillPoint = "Flat"

sketch16 = body.newObject("Sketcher::SketchObject", "Sketch015")
sketch16.AttachmentSupport = (doc.getObject("XZ_Plane"), [""])
sketch16.MapMode = "FlatFace"
sketch16.addGeometry([
    Part.Circle(V(-6.9, 6.9, 0), V(0, 0, 1), 1.8),
    Part.Circle(V(-6.9, -6.9, 0), V(0, 0, 1), 1.8),
    Part.Circle(V(6.9, -6.9, 0), V(0, 0, 1), 1.8),
    Part.Circle(V(6.9, 6.9, 0), V(0, 0, 1), 1.8),
], False)
sketch16.addConstraint([
    Sketcher.Constraint("Equal", 0, 1),
    Sketcher.Constraint("Equal", 1, 2),
    Sketcher.Constraint("Equal", 2, 3),
    Sketcher.Constraint("Symmetric", 0, 3, 2, 3, -1, 1),
    Sketcher.Constraint("Symmetric", 1, 3, 3, 3, -1, 1),
    Sketcher.Constraint("Symmetric", 1, 3, 2, 3, -2),
    Sketcher.Constraint("Diameter", 0, Q("0.14 in")),
    Sketcher.Constraint("DistanceX", 0, 3, -1, 1, 6.914797),
    Sketcher.Constraint("DistanceY", -1, 1, 0, 3, 6.914797),
])
doc.recompute()
hole3 = body.newObject("PartDesign::Hole", "Hole002")
hole3.Profile = sketch16
hole3.ThreadType = "None"
hole3.Diameter = Q("0.14 in")
hole3.DepthType = "Dimension"
hole3.Depth = 3.175025
hole3.DrillPoint = "Flat"

sketch17 = body.newObject("Sketcher::SketchObject", "Sketch016")
sketch17.AttachmentSupport = (doc.getObject("YZ_Plane"), [""])
sketch17.MapMode = "FlatFace"
sketch17.AttachmentOffset = App.Placement(V(0, 0, 0.66 * 25.4), App.Rotation())
sketch17.addGeometry(Part.Circle(V(0, -13.5, 0), V(0, 0, 1), 1.4), False)
sketch17.addConstraint([
    Sketcher.Constraint("PointOnObject", 0, 3, -2),
    Sketcher.Constraint("Diameter", 0, Q("0.1065 in")),
    Sketcher.Constraint("DistanceY", 0, 3, -1, 1, 13.470384),
])
doc.recompute()
hole4 = body.newObject("PartDesign::Hole", "Hole003")
hole4.Profile = sketch17
hole4.ThreadType = "None"
hole4.Diameter = Q("0.1065 in")
hole4.DepthType = "Dimension"
hole4.Depth = Q("0.1297 in")
hole4.DrillPoint = "Flat"

sketch18 = body.newObject("Sketcher::SketchObject", "Sketch017")
sketch18.AttachmentSupport = (doc.getObject("YZ_Plane"), [""])
sketch18.MapMode = "FlatFace"
sketch18.AttachmentOffset = App.Placement(V(0, 0, 0.5303 * 25.4), App.Rotation())
sketch18.addGeometry(Part.Circle(V(0, 13.5, 0), V(0, 0, 1), 1.4), False)
sketch18.addConstraint([
    Sketcher.Constraint("PointOnObject", 0, 3, -2),
    Sketcher.Constraint("Diameter", 0, Q("0.1065 in")),
    Sketcher.Constraint("DistanceY", -1, 1, 0, 3, 13.470384),
])
doc.recompute()
hole5 = body.newObject("PartDesign::Hole", "Hole004")
hole5.Profile = sketch18
hole5.ThreadType = "None"
hole5.Diameter = Q("0.1065 in")
hole5.DepthType = "Dimension"
hole5.Depth = Q("0.1297 in")
hole5.DrillPoint = "Flat"
hole5.Reversed = True

sketch19 = body.newObject("Sketcher::SketchObject", "Sketch018")
sketch19.AttachmentSupport = (doc.getObject("YZ_Plane"), [""])
sketch19.MapMode = "FlatFace"
sketch19.AttachmentOffset = App.Placement(V(0, 0, -0.5303 * 25.4), App.Rotation())
sketch19.addGeometry([
    Part.Circle(V(0, 13.5, 0), V(0, 0, 1), 1.4),
    Part.Circle(V(0, -13.5, 0), V(0, 0, 1), 1.4),
], False)
sketch19.addConstraint([
    Sketcher.Constraint("Equal", 0, 1),
    Sketcher.Constraint("Symmetric", 0, 3, 1, 3, -1, 1),
    Sketcher.Constraint("PointOnObject", 0, 3, -2),
    Sketcher.Constraint("Diameter", 0, Q("0.1065 in")),
    Sketcher.Constraint("DistanceY", 1, 3, 0, 3, 26.940768),
])
doc.recompute()
hole6 = body.newObject("PartDesign::Hole", "Hole005")
hole6.Profile = sketch19
hole6.ThreadType = "None"
hole6.Diameter = Q("0.1065 in")
hole6.DepthType = "Dimension"
hole6.Depth = 3.29443
hole6.DrillPoint = "Flat"
doc.recompute()

fillet = body.newObject("PartDesign::Fillet", "Fillet")
fillet.Base = (hole6, edges_at(hole6, [
    (-13.47, -1.587, -10.329),
    (-15.422, -1.587, 8.133),
    (15.422, -1.587, -8.133),
    (15.422, -1.587, 8.133),
    (13.47, -1.587, -10.329),
    (-13.47, -1.587, 10.329),
    (-15.422, -1.587, -8.133),
    (13.47, -1.587, 10.329),
]))
fillet.Radius = Q("0.025 in")
doc.recompute()

fillet2 = body.newObject("PartDesign::Fillet", "Fillet001")
fillet2.Base = (fillet, edges_at(fillet, [
    (-12.594, 1.587, -1.64),
    (12.594, 1.587, -1.64),
    (-12.594, 1.587, 1.64),
    (12.594, 1.587, 1.64),
]))
fillet2.Radius = Q("0.125 in")

doc.recompute()
